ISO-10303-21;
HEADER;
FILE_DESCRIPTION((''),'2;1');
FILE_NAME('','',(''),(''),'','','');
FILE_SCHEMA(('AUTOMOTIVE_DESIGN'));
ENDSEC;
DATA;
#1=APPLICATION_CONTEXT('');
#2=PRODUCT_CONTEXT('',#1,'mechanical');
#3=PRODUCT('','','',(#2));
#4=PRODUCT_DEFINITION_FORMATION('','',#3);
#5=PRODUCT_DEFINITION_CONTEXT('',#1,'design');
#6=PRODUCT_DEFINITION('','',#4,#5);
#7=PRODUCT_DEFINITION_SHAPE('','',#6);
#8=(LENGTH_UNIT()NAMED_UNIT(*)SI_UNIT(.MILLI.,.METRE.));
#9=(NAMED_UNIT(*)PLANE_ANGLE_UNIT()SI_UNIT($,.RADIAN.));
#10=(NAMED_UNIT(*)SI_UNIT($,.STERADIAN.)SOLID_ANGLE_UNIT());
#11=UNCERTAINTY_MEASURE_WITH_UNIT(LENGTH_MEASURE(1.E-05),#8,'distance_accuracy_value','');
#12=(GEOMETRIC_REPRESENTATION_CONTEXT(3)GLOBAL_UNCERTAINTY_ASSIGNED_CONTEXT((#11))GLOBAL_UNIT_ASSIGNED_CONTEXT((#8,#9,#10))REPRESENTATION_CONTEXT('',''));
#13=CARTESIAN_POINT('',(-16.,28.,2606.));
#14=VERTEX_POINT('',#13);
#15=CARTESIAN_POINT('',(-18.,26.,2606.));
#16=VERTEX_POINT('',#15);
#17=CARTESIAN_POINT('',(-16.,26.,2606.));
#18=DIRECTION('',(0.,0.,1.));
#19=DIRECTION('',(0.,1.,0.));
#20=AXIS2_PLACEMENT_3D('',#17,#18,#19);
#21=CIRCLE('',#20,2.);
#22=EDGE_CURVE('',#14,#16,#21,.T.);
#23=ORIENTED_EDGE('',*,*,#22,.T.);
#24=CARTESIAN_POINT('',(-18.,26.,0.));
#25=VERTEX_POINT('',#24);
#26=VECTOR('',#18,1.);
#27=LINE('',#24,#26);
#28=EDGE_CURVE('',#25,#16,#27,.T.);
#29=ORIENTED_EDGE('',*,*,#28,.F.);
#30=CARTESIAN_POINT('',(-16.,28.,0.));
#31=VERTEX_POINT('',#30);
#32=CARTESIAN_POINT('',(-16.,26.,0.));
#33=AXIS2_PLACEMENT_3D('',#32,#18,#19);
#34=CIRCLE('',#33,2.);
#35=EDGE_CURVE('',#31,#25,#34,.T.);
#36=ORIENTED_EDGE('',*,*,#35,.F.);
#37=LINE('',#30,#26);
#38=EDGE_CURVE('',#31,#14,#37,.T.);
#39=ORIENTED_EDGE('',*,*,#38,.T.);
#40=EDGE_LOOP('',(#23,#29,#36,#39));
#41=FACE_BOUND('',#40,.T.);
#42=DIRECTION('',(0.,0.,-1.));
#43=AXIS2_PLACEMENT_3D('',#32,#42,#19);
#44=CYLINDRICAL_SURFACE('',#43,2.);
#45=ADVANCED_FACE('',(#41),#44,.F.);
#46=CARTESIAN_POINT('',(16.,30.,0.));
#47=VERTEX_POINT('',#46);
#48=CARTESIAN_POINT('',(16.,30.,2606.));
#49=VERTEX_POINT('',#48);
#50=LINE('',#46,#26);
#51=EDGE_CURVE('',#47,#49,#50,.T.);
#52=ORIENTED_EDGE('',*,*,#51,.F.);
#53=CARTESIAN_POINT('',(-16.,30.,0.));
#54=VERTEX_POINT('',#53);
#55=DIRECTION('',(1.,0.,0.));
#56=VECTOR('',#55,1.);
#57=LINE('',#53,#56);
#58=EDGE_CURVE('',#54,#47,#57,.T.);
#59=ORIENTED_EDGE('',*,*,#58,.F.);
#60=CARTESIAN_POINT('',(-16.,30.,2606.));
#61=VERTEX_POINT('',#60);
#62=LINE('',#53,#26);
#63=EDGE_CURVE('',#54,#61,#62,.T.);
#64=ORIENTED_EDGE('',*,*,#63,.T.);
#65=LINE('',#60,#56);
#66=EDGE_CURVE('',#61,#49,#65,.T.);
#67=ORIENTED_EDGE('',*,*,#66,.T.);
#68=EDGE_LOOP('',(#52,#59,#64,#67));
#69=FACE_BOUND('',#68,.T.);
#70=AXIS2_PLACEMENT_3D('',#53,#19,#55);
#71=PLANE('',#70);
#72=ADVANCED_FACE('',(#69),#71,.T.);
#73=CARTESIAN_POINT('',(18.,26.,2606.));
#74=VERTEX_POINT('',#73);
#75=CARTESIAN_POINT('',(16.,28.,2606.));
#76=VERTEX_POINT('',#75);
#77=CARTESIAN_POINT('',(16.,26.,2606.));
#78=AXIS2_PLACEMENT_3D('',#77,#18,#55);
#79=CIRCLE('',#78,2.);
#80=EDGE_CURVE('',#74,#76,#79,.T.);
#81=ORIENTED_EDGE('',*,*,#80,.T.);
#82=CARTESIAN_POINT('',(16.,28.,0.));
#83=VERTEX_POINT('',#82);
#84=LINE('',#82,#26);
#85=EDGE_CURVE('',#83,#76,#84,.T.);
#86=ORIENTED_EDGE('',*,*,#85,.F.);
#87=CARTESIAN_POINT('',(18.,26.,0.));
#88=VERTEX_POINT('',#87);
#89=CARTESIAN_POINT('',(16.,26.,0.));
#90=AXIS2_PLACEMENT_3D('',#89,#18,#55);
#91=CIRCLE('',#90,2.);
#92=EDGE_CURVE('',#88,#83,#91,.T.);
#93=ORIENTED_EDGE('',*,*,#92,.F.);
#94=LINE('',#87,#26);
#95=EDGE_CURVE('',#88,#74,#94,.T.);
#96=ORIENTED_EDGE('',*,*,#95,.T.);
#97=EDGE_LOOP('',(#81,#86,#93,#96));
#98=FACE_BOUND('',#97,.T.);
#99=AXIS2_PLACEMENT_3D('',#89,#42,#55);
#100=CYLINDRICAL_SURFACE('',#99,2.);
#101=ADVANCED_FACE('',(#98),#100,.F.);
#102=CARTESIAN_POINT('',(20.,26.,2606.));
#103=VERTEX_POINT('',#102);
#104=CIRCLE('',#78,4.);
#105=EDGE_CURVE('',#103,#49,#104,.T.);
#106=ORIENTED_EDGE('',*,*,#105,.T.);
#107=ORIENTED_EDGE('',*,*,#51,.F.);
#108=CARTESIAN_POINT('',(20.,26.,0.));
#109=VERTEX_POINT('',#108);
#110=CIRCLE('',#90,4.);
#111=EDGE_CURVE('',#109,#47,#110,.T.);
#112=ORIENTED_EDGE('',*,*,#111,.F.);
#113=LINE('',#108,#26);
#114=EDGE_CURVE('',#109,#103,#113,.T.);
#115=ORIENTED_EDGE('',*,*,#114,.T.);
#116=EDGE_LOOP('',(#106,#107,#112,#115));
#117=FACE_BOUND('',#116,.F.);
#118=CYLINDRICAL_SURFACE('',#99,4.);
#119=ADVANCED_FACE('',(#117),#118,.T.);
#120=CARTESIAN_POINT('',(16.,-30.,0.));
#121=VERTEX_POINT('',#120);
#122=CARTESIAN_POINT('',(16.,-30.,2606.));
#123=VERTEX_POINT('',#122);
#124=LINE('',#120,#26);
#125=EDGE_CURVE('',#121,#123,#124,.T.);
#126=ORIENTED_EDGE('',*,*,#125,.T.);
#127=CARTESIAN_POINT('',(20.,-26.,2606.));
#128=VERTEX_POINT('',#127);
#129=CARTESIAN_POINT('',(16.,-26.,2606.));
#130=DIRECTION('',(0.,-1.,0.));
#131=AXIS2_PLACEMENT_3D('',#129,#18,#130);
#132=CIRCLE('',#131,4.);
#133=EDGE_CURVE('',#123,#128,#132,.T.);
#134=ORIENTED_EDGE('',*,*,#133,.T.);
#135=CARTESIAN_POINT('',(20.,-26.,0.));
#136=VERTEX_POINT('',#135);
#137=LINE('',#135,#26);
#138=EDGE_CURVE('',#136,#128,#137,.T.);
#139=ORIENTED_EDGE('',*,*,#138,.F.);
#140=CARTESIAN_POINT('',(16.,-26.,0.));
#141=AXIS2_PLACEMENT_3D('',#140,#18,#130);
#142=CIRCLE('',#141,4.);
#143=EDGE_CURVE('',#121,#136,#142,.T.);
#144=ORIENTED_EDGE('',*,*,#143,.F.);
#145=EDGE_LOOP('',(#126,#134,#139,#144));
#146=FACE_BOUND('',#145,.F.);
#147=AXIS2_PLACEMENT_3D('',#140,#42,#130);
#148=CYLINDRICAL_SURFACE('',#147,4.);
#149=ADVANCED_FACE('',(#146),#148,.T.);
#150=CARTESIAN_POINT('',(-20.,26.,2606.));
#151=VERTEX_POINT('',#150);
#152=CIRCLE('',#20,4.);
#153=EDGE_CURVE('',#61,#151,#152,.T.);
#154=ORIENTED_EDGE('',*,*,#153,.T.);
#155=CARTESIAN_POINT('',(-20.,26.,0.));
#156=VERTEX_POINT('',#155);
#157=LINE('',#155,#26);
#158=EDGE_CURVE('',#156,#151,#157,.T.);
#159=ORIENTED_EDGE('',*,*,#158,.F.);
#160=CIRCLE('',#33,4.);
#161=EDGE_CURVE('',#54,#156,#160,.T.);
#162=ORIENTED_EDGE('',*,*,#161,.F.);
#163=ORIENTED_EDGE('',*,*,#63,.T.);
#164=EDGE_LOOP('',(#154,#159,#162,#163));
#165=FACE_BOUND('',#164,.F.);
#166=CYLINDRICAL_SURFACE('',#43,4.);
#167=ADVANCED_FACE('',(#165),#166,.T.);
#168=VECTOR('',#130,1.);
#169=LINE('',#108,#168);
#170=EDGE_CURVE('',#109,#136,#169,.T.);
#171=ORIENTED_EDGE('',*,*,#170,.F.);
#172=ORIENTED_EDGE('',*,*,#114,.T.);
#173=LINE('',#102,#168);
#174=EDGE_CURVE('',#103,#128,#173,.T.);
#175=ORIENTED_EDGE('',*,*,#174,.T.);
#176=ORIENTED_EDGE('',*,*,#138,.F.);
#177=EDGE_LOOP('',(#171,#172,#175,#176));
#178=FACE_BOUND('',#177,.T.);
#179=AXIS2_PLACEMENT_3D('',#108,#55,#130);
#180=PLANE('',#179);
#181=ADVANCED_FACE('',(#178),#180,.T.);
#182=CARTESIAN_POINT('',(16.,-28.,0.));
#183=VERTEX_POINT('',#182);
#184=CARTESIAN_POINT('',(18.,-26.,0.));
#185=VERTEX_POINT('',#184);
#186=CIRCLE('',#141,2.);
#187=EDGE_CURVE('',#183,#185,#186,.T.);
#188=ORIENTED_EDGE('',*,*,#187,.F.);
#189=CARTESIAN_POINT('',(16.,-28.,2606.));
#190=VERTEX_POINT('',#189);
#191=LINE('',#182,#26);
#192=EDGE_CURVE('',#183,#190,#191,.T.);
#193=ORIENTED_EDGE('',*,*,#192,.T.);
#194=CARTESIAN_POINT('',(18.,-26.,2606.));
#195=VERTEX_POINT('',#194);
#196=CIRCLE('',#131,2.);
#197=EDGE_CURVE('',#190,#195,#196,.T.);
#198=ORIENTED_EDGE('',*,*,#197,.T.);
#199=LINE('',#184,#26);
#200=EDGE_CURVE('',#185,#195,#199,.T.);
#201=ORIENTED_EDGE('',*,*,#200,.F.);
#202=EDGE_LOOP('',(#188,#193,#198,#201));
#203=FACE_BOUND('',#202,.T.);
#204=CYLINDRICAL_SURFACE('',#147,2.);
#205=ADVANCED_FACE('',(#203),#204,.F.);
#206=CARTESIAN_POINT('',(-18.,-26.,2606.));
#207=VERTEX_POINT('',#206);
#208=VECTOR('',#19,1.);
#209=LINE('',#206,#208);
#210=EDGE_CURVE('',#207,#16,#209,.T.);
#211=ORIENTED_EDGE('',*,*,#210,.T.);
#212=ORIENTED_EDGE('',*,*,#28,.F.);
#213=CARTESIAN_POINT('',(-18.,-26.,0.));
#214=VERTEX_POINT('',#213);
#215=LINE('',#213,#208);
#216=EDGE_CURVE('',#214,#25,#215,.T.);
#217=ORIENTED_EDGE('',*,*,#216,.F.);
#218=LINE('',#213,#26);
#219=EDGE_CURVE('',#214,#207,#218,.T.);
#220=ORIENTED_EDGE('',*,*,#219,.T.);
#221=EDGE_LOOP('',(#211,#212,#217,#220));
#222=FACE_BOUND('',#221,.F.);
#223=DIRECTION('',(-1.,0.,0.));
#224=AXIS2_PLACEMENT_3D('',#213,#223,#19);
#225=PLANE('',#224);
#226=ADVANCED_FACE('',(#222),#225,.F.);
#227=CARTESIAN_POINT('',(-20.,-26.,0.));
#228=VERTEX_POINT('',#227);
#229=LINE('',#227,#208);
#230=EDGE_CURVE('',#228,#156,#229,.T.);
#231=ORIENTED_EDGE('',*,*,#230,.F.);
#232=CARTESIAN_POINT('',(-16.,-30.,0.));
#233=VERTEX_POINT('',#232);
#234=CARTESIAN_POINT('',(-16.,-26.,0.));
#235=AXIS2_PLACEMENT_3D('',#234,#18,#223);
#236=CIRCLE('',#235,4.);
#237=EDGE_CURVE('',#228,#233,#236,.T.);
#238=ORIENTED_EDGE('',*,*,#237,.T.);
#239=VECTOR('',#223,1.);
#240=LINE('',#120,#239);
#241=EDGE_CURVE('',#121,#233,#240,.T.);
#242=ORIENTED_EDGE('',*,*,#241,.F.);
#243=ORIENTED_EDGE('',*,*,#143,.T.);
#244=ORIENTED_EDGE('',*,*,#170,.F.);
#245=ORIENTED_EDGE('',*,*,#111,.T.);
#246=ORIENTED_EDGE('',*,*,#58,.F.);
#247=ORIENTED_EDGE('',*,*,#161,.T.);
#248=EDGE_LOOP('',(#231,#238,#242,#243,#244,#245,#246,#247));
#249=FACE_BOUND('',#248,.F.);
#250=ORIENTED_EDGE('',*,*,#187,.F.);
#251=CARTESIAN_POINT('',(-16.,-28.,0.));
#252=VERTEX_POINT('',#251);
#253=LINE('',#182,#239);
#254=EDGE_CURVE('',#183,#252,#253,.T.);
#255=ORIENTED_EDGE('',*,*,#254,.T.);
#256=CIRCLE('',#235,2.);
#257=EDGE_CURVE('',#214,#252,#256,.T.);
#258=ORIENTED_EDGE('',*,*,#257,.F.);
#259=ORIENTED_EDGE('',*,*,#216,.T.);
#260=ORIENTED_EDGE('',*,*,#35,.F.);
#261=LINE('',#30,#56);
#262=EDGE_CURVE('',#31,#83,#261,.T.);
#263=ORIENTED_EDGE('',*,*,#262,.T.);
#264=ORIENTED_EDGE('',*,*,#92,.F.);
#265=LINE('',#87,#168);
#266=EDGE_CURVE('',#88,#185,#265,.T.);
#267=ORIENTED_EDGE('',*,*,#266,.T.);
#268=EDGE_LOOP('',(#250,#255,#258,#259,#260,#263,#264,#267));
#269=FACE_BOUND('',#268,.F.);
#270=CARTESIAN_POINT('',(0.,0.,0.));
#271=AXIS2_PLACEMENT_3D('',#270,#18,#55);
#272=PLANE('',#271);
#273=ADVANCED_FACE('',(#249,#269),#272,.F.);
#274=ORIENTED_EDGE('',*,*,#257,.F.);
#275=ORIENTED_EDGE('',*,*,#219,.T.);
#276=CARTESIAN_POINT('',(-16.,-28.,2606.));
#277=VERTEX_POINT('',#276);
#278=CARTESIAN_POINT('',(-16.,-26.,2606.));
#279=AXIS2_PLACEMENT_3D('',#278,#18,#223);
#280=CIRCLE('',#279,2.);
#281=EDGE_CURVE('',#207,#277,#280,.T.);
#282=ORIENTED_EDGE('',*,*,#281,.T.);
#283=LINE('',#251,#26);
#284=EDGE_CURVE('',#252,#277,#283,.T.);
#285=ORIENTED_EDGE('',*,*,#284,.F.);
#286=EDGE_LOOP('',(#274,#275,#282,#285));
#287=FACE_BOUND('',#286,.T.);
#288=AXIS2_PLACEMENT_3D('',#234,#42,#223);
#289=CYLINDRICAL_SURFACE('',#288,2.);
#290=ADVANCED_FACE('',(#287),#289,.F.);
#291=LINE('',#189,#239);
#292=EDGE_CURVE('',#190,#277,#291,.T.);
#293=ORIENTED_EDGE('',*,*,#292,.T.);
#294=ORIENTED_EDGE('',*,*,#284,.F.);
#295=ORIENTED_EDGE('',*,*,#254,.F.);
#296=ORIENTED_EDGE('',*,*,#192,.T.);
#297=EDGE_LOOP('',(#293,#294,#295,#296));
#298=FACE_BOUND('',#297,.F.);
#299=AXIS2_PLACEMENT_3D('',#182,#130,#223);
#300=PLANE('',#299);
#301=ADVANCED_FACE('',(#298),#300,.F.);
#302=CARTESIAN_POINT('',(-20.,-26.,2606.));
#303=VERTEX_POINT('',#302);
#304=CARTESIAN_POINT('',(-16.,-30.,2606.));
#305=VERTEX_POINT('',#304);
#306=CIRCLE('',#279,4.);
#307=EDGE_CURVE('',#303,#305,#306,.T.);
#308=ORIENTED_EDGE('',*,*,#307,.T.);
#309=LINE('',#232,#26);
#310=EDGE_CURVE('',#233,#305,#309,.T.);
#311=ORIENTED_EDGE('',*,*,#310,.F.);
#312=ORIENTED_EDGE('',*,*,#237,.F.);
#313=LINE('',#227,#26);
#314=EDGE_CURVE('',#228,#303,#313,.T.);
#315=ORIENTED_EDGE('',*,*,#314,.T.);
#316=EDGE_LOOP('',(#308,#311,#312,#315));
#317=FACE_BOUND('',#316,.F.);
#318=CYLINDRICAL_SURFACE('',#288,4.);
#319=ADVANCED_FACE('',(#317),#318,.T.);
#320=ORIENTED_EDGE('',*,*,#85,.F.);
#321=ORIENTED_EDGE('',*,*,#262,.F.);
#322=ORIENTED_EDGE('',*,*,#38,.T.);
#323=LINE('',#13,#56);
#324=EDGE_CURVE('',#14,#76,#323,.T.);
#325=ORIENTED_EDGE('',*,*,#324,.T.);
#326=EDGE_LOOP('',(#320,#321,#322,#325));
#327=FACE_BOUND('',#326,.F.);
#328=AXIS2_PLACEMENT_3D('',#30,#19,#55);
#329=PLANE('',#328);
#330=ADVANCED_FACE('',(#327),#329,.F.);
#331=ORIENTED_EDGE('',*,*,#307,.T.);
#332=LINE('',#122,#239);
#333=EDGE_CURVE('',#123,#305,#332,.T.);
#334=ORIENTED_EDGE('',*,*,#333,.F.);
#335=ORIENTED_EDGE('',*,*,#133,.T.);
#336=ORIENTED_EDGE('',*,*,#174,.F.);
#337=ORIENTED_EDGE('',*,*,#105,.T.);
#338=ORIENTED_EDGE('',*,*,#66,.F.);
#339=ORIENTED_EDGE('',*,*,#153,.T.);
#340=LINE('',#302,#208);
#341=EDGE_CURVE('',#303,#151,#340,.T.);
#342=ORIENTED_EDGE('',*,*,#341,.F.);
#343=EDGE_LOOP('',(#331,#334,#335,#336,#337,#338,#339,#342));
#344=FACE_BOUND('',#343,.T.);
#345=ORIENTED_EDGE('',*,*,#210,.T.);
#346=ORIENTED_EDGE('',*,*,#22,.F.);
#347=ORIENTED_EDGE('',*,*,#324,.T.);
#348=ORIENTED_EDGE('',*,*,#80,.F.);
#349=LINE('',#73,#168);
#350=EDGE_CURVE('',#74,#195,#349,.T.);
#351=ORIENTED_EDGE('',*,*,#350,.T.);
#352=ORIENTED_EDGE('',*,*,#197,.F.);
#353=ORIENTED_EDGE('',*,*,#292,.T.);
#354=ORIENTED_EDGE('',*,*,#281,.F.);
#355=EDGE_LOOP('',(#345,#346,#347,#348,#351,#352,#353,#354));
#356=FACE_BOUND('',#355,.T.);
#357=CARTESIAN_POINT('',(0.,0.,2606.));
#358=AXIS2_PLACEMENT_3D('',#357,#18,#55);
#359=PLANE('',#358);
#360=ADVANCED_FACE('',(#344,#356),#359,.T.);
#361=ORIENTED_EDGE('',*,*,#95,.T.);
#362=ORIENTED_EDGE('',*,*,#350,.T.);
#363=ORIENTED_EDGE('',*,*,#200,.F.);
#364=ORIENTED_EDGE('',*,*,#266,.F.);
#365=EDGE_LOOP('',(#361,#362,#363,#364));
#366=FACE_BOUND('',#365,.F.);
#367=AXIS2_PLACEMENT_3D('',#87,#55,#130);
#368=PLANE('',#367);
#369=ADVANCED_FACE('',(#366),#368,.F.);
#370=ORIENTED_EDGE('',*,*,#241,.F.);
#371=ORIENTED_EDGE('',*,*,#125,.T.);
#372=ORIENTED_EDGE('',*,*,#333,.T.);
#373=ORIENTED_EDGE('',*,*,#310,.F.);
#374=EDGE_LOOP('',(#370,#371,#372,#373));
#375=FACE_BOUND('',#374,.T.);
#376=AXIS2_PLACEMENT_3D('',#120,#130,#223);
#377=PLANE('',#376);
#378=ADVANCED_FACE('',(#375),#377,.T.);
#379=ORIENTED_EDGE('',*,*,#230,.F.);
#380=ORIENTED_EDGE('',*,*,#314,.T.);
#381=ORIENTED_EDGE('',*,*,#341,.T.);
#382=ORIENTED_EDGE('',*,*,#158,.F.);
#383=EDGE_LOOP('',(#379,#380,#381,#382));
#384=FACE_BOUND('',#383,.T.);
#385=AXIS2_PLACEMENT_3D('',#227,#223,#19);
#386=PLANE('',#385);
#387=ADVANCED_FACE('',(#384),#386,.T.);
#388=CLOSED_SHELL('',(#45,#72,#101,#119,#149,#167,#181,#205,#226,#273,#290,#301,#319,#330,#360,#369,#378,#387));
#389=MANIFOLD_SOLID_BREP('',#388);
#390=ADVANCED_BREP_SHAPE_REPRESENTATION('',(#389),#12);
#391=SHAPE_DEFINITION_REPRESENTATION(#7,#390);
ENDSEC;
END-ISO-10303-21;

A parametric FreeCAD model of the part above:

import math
import FreeCAD as App
import Part
import Sketcher
from FreeCAD import Vector
Q = App.Units.Quantity

doc = App.newDocument("Part")
body = doc.addObject("PartDesign::Body", "Body")

# Sketch on XY plane
sketch1 = body.newObject("Sketcher::SketchObject", "Sketch")
sketch1.AttachmentSupport = (doc.getObject("XY_Plane"), [""])
sketch1.MapMode = "FlatFace"
sketch1.addGeometry([
    Part.LineSegment(Vector(-20, 26, 0), Vector(-20, -26, 0)),  # 0
    Part.ArcOfCircle(Part.Circle(Vector(-16, -26, 0), Vector(0, 0, 1), 4), math.radians(180), math.radians(270)),  # 1
    Part.LineSegment(Vector(-16, -30, 0), Vector(16, -30, 0)),  # 2
    Part.ArcOfCircle(Part.Circle(Vector(16, -26, 0), Vector(0, 0, 1), 4), math.radians(-90), math.radians(0)),  # 3
    Part.LineSegment(Vector(20, -26, 0), Vector(20, 26, 0)),  # 4
    Part.ArcOfCircle(Part.Circle(Vector(16, 26, 0), Vector(0, 0, 1), 4), math.radians(0), math.radians(90)),  # 5
    Part.LineSegment(Vector(16, 30, 0), Vector(-16, 30, 0)),  # 6
    Part.ArcOfCircle(Part.Circle(Vector(-16, 26, 0), Vector(0, 0, 1), 4), math.radians(90), math.radians(180)),  # 7
    Part.ArcOfCircle(Part.Circle(Vector(-16, 26, 0), Vector(0, 0, 1), 2), math.radians(90), math.radians(180)),  # 8
    Part.LineSegment(Vector(-16, 28, 0), Vector(16, 28, 0)),  # 9
    Part.ArcOfCircle(Part.Circle(Vector(16, 26, 0), Vector(0, 0, 1), 2), math.radians(0), math.radians(90)),  # 10
    Part.LineSegment(Vector(18, 26, 0), Vector(18, -26, 0)),  # 11
    Part.ArcOfCircle(Part.Circle(Vector(16, -26, 0), Vector(0, 0, 1), 2), math.radians(-90), math.radians(0)),  # 12
    Part.LineSegment(Vector(16, -28, 0), Vector(-16, -28, 0)),  # 13
    Part.ArcOfCircle(Part.Circle(Vector(-16, -26, 0), Vector(0, 0, 1), 2), math.radians(180), math.radians(270)),  # 14
    Part.LineSegment(Vector(-18, -26, 0), Vector(-18, 26, 0)),  # 15
], False)
sketch1.addConstraint([
    Sketcher.Constraint("Tangent", 0, 2, 1, 1),
    Sketcher.Constraint("Tangent", 1, 2, 2, 1),
    Sketcher.Constraint("Tangent", 2, 2, 3, 1),
    Sketcher.Constraint("Tangent", 3, 2, 4, 1),
    Sketcher.Constraint("Tangent", 4, 2, 5, 1),
    Sketcher.Constraint("Tangent", 5, 2, 6, 1),
    Sketcher.Constraint("Tangent", 6, 2, 7, 1),
    Sketcher.Constraint("Tangent", 7, 2, 0, 1),
    Sketcher.Constraint("Tangent", 8, 1, 9, 1),
    Sketcher.Constraint("Tangent", 9, 2, 10, 2),
    Sketcher.Constraint("Tangent", 10, 1, 11, 1),
    Sketcher.Constraint("Tangent", 11, 2, 12, 2),
    Sketcher.Constraint("Tangent", 12, 1, 13, 1),
    Sketcher.Constraint("Tangent", 13, 2, 14, 2),
    Sketcher.Constraint("Tangent", 14, 1, 15, 1),
    Sketcher.Constraint("Tangent", 15, 2, 8, 2),
    Sketcher.Constraint("Vertical", 0),
    Sketcher.Constraint("Horizontal", 2),
    Sketcher.Constraint("Vertical", 4),
    Sketcher.Constraint("Horizontal", 6),
    Sketcher.Constraint("Horizontal", 9),
    Sketcher.Constraint("Vertical", 11),
    Sketcher.Constraint("Horizontal", 13),
    Sketcher.Constraint("Vertical", 15),
    Sketcher.Constraint("Coincident", 8, 3, 7, 3),
    Sketcher.Constraint("Coincident", 10, 3, 5, 3),
    Sketcher.Constraint("Coincident", 12, 3, 3, 3),
    Sketcher.Constraint("Equal", 1, 3),
    Sketcher.Constraint("Equal", 3, 5),
    Sketcher.Constraint("Equal", 5, 7),
    Sketcher.Constraint("Equal", 12, 14),
    Sketcher.Constraint("Symmetric", 1, 3, 5, 3, -1, 1),
    Sketcher.Constraint("Radius", 1, Q("4 mm")),
    Sketcher.Constraint("Radius", 8, Q("2 mm")),
    Sketcher.Constraint("DistanceX", 0, 2, -1, 1, Q("20 mm")),
    Sketcher.Constraint("DistanceY", 1, 2, -1, 1, Q("30 mm")),
])
pad1 = body.newObject("PartDesign::Pad", "Pad")
pad1.Profile = sketch1
pad1.Length = 2606

doc.recompute()
